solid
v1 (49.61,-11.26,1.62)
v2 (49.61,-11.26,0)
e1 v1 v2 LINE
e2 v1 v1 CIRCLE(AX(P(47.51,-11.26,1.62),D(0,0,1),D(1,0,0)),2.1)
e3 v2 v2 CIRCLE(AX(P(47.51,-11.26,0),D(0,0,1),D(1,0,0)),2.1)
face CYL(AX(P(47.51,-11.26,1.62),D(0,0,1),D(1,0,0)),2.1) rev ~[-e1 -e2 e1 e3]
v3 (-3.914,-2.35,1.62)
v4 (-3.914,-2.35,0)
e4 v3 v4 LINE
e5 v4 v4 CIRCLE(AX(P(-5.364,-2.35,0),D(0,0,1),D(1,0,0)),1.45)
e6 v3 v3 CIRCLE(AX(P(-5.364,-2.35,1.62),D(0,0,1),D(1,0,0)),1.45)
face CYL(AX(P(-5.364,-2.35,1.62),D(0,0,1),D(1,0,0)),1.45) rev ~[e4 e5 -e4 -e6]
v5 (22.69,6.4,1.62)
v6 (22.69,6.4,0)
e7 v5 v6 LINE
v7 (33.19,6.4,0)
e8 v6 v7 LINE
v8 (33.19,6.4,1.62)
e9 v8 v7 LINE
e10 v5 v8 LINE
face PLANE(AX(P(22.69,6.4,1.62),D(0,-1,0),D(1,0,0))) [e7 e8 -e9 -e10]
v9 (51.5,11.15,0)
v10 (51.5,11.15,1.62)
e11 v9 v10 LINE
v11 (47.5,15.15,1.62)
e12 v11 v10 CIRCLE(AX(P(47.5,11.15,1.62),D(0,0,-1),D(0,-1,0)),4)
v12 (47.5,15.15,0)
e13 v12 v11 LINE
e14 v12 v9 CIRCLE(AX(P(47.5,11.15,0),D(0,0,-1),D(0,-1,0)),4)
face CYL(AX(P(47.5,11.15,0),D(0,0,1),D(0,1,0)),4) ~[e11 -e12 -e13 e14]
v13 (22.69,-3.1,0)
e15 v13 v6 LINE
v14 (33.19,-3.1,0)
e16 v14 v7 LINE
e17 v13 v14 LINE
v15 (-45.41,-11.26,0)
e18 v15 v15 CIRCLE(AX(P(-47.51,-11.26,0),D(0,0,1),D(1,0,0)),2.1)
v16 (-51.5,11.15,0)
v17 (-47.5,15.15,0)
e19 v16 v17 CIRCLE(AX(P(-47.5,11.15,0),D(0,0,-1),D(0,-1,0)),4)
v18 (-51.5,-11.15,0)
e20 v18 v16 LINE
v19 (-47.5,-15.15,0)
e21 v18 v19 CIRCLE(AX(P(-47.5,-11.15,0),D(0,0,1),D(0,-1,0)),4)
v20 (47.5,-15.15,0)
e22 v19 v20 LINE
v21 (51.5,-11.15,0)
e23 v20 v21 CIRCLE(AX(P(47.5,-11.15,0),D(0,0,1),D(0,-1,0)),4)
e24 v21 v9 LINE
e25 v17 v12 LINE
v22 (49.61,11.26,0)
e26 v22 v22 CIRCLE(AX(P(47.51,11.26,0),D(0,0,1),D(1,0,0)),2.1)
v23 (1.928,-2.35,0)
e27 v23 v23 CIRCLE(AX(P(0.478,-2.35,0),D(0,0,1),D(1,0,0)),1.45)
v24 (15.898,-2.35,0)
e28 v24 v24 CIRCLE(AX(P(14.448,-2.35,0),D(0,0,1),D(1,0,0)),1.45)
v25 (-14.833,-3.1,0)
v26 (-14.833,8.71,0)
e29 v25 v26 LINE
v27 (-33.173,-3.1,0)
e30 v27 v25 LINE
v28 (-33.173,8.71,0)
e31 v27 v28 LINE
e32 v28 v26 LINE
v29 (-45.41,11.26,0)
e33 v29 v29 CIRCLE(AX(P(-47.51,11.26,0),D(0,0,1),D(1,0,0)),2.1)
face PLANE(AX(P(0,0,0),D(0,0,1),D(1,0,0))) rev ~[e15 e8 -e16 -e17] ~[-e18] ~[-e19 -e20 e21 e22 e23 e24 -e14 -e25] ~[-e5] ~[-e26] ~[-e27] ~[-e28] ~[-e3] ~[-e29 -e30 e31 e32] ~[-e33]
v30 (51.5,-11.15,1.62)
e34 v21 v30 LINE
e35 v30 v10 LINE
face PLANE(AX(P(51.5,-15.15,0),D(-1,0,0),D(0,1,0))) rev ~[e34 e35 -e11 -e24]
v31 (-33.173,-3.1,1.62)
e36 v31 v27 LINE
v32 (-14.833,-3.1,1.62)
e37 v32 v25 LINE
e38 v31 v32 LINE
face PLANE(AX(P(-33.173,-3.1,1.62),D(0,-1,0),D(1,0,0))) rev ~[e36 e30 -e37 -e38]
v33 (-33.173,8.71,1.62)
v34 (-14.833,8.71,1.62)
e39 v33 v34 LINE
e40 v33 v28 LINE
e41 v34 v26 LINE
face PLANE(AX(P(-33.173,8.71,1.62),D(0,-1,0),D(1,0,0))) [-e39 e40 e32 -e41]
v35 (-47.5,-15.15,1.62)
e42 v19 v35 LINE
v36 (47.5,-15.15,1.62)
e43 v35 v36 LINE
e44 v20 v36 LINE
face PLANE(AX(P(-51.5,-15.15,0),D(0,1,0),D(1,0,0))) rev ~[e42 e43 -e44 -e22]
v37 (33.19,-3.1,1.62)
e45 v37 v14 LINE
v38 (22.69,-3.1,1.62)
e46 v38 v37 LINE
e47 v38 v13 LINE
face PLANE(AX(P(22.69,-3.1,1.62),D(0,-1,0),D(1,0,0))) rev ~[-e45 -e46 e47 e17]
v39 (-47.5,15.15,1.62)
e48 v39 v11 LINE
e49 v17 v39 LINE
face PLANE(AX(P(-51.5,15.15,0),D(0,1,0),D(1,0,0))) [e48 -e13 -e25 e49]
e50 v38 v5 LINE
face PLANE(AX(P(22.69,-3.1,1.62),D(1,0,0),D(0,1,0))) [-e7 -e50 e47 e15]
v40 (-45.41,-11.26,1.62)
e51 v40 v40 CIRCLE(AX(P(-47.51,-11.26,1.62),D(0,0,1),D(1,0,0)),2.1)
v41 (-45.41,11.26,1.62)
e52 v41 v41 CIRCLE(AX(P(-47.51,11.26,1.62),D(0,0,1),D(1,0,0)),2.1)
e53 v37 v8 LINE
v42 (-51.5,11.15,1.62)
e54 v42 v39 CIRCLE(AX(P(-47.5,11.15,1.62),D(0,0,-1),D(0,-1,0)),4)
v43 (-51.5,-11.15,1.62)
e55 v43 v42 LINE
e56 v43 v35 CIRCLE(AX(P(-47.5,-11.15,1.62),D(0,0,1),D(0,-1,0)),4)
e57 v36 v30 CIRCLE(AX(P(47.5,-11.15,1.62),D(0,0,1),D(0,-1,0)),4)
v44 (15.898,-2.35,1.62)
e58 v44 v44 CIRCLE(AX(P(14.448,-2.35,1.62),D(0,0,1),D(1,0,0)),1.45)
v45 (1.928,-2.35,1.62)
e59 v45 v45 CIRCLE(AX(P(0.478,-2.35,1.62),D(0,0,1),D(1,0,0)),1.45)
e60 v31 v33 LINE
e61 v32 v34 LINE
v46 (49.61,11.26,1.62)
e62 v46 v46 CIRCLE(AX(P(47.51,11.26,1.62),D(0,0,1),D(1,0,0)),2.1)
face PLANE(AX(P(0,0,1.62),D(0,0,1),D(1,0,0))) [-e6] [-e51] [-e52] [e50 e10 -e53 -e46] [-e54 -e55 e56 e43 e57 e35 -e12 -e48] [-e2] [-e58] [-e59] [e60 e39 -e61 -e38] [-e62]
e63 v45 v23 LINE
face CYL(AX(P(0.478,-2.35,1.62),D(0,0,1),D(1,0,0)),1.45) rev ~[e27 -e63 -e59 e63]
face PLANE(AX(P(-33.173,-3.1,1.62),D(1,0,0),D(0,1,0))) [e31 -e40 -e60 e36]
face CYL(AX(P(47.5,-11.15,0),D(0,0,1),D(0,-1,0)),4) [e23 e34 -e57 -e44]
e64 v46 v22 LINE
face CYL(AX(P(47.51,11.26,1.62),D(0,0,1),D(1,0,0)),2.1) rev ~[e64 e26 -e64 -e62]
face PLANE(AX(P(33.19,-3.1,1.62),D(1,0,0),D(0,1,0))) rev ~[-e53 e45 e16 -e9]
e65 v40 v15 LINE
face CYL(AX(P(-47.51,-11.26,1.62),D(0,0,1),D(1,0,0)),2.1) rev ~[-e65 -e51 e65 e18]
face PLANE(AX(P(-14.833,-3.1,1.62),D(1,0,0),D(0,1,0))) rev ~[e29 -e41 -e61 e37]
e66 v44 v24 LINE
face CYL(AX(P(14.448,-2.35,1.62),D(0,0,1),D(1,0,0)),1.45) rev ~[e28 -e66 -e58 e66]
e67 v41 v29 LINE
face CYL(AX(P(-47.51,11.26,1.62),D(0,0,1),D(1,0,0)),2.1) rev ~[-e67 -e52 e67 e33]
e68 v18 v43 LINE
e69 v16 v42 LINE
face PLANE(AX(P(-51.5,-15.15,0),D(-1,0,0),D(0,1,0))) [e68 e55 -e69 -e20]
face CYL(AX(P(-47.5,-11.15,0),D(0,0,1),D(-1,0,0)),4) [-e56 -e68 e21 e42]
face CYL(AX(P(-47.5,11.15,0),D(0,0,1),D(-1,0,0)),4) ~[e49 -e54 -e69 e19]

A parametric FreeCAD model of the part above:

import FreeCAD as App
import Part
import Sketcher


def edges_at(feature, points):
    """Names of the edges that pass closest to the given points."""
    edges = feature.Shape.Edges
    near = lambda p: min(range(len(edges)), key=lambda i: edges[i].distToShape(Part.Vertex(*p))[0])
    return sorted({f"Edge{near(p) + 1}" for p in points})

doc = App.newDocument("Part")
body = doc.addObject("PartDesign::Body", "Body")

sketch1 = doc.addObject("Sketcher::SketchObject", "Sketch")
body.addObject(sketch1)
sketch1.AttachmentSupport = (doc.XY_Plane, [""])
sketch1.MapMode = "FlatFace"
sketch1.addGeometry([
    Part.LineSegment(App.Vector(-52, 15, 0), App.Vector(-52, -15, 0)),
    Part.LineSegment(App.Vector(-52, -15, 0), App.Vector(52, -15, 0)),
    Part.LineSegment(App.Vector(52, -15, 0), App.Vector(52, 15, 0)),
    Part.LineSegment(App.Vector(52, 15, 0), App.Vector(-52, 15, 0)),
], False)
sketch1.addConstraint([
    Sketcher.Constraint("Coincident", 0, 2, 1, 1),
    Sketcher.Constraint("Coincident", 1, 2, 2, 1),
    Sketcher.Constraint("Coincident", 2, 2, 3, 1),
    Sketcher.Constraint("Coincident", 3, 2, 0, 1),
    Sketcher.Constraint("Vertical", 0),
    Sketcher.Constraint("Horizontal", 1),
    Sketcher.Constraint("Vertical", 2),
    Sketcher.Constraint("Horizontal", 3),
    Sketcher.Constraint("Symmetric", 0, 2, 2, 2, -1, 1),
    Sketcher.Constraint("DistanceX", 1, 1, 1, 2, 103.0),
    Sketcher.Constraint("DistanceY", 0, 2, 0, 1, 30.3),
])
pad1 = doc.addObject("PartDesign::Pad", "Pad")
body.addObject(pad1)
pad1.Profile = sketch1
pad1.Length = 1.62

sketch2 = doc.addObject("Sketcher::SketchObject", "Sketch001")
body.addObject(sketch2)
sketch2.AttachmentSupport = (doc.XY_Plane, [""])
sketch2.MapMode = "FlatFace"
sketch2.AttachmentOffset = App.Placement(App.Vector(0, 0, 1.62), App.Rotation())
sketch2.addGeometry([
    Part.Circle(App.Vector(-47.5, 11.3, 0), App.Vector(0, 0, 1), 2.1),
    Part.Circle(App.Vector(47.5, 11.3, 0), App.Vector(0, 0, 1), 2.1),
    Part.Circle(App.Vector(-47.5, -11.3, 0), App.Vector(0, 0, 1), 2.1),
    Part.Circle(App.Vector(47.5, -11.3, 0), App.Vector(0, 0, 1), 2.1),
], False)
sketch2.addConstraint([
    Sketcher.Constraint("Equal", 0, 1),
    Sketcher.Constraint("Equal", 1, 2),
    Sketcher.Constraint("Equal", 2, 3),
    Sketcher.Constraint("Symmetric", 1, 3, 2, 3, -1, 1),
    Sketcher.Constraint("Symmetric", 0, 3, 3, 3, -1, 1),
    Sketcher.Constraint("Symmetric", 0, 3, 1, 3, -2),
    Sketcher.Constraint("Diameter", 0, 4.2),
    Sketcher.Constraint("DistanceX", 0, 3, -1, 1, 47.51),
    Sketcher.Constraint("DistanceY", -1, 1, 0, 3, 11.26),
])
pocket1 = doc.addObject("PartDesign::Pocket", "Pocket")
body.addObject(pocket1)
pocket1.Profile = sketch2
pocket1.Length = 5

sketch3 = doc.addObject("Sketcher::SketchObject", "Sketch002")
body.addObject(sketch3)
sketch3.AttachmentSupport = (doc.XY_Plane, [""])
sketch3.MapMode = "FlatFace"
sketch3.AttachmentOffset = App.Placement(App.Vector(0, 0, 1.62), App.Rotation())
sketch3.addGeometry([
    Part.Circle(App.Vector(-5.4, -2.4, 0), App.Vector(0, 0, 1), 1.4),
    Part.Circle(App.Vector(0.5, -2.4, 0), App.Vector(0, 0, 1), 1.4),
    Part.Circle(App.Vector(14.4, -2.4, 0), App.Vector(0, 0, 1), 1.4),
    Part.LineSegment(App.Vector(-33.2, 8.7, 0), App.Vector(-33.2, -3.1, 0)),
    Part.LineSegment(App.Vector(-33.2, -3.1, 0), App.Vector(-14.8, -3.1, 0)),
    Part.LineSegment(App.Vector(-14.8, -3.1, 0), App.Vector(-14.8, 8.7, 0)),
    Part.LineSegment(App.Vector(-14.8, 8.7, 0), App.Vector(-33.2, 8.7, 0)),
    Part.LineSegment(App.Vector(22.7, 6.4, 0), App.Vector(22.7, -3.1, 0)),
    Part.LineSegment(App.Vector(22.7, -3.1, 0), App.Vector(33.2, -3.1, 0)),
    Part.LineSegment(App.Vector(33.2, -3.1, 0), App.Vector(33.2, 6.4, 0)),
    Part.LineSegment(App.Vector(33.2, 6.4, 0), App.Vector(22.7, 6.4, 0)),
], False)
sketch3.addConstraint([
    Sketcher.Constraint("Coincident", 3, 2, 4, 1),
    Sketcher.Constraint("Coincident", 4, 2, 5, 1),
    Sketcher.Constraint("Coincident", 5, 2, 6, 1),
    Sketcher.Constraint("Coincident", 6, 2, 3, 1),
    Sketcher.Constraint("Coincident", 7, 2, 8, 1),
    Sketcher.Constraint("Coincident", 8, 2, 9, 1),
    Sketcher.Constraint("Coincident", 9, 2, 10, 1),
    Sketcher.Constraint("Coincident", 10, 2, 7, 1),
    Sketcher.Constraint("Vertical", 3),
    Sketcher.Constraint("Horizontal", 4),
    Sketcher.Constraint("Vertical", 5),
    Sketcher.Constraint("Horizontal", 6),
    Sketcher.Constraint("Vertical", 7),
    Sketcher.Constraint("Horizontal", 8),
    Sketcher.Constraint("Vertical", 9),
    Sketcher.Constraint("Horizontal", 10),
    Sketcher.Constraint("Equal", 0, 1),
    Sketcher.Constraint("Equal", 1, 2),
    Sketcher.Constraint("Horizontal", 0, 3, 1, 3),
    Sketcher.Constraint("Horizontal", 1, 3, 2, 3),
    Sketcher.Constraint("Horizontal", 4, 2, 7, 2),
    Sketcher.Constraint("Diameter", 0, 2.9),
    Sketcher.Constraint("DistanceX", 8, 1, 8, 2, 10.5),
    Sketcher.Constraint("DistanceY", 7, 2, 7, 1, 9.5),
    Sketcher.Constraint("DistanceX", 4, 1, 4, 2, 18.34),
    Sketcher.Constraint("DistanceY", 3, 2, 3, 1, 11.81),
    Sketcher.Constraint("DistanceY", 3, 2, -1, 1, 3.1),
    Sketcher.Constraint("DistanceY", 0, 3, -1, 1, 2.35),
    Sketcher.Constraint("DistanceX", -1, 1, 7, 2, 22.69),
    Sketcher.Constraint("DistanceX", 1, 3, 2, 3, 13.97),
    Sketcher.Constraint("DistanceX", 0, 3, -1, 1, 5.364),
    Sketcher.Constraint("DistanceX", -1, 1, 1, 3, 0.478),
    Sketcher.Constraint("DistanceX", 3, 2, -1, 1, 33.173),
])
pocket2 = doc.addObject("PartDesign::Pocket", "Pocket001")
body.addObject(pocket2)
pocket2.Profile = sketch3
pocket2.Length = 5
doc.recompute()

fillet = doc.addObject("PartDesign::Fillet", "Fillet")
body.addObject(fillet)
fillet.Base = (pocket2, edges_at(pocket2, [
    (-51.5, -15.15, 0.81),
    (-51.5, 15.15, 0.81),
    (51.5, -15.15, 0.81),
    (51.5, 15.15, 0.81),
]))
fillet.Radius = 4

doc.recompute()
